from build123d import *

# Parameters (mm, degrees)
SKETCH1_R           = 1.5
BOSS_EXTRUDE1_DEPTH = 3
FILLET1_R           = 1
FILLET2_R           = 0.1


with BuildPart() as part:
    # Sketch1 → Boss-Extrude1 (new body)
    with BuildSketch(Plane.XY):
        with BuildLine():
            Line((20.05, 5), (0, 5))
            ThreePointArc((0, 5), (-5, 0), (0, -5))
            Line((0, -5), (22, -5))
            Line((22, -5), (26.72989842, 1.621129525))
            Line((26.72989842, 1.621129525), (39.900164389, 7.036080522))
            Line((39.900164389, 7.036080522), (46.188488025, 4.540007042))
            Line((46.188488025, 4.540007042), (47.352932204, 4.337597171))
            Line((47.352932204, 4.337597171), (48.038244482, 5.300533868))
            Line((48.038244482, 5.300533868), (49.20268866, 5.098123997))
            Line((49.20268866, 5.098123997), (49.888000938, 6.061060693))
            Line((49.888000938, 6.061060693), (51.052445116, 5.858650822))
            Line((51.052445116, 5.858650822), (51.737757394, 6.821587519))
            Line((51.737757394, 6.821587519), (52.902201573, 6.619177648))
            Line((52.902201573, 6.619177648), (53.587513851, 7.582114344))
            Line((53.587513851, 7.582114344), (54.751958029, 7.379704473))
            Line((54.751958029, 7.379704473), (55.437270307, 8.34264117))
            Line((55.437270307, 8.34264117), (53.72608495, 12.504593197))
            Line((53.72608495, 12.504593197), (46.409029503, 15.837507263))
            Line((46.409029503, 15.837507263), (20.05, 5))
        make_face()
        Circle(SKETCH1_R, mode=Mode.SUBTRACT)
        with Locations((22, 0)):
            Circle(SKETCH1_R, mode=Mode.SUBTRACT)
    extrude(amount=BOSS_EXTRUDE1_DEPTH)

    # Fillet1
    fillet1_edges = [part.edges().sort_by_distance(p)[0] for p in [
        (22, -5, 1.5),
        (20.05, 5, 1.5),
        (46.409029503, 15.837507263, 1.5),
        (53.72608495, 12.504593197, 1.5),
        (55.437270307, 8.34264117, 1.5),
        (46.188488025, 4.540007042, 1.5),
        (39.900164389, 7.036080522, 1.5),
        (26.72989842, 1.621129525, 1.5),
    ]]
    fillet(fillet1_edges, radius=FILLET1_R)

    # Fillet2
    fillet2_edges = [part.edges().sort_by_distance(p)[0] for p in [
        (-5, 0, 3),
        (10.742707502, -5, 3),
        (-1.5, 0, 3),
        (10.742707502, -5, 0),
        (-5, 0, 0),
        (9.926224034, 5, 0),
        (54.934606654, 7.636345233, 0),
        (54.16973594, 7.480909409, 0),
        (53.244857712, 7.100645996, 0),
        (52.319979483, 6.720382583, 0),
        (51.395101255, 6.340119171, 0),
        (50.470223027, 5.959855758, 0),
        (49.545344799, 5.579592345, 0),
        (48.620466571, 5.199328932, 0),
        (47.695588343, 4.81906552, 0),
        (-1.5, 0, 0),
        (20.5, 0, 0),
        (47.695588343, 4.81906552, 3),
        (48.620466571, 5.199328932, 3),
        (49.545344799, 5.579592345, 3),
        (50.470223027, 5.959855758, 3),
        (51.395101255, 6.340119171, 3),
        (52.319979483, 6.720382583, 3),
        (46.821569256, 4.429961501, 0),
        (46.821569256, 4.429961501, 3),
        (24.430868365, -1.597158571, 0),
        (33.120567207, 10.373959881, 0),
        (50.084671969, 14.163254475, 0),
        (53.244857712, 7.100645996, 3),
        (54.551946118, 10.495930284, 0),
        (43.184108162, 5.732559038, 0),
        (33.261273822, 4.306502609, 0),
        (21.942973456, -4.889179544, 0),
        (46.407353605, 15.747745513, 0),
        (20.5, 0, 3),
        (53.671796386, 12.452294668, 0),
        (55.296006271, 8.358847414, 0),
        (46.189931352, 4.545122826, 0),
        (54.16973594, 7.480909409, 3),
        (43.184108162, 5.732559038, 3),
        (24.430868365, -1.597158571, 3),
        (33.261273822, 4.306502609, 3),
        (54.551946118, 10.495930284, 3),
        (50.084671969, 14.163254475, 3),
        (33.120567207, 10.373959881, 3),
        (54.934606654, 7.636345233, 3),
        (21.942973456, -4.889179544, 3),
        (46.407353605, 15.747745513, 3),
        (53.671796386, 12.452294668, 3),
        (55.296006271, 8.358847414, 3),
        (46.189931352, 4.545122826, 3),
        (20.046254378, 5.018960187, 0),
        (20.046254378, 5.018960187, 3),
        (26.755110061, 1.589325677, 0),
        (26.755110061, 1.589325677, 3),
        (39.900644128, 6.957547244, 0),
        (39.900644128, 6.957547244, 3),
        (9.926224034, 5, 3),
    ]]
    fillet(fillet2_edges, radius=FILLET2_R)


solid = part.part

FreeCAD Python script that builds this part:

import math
import FreeCAD as App
import Part
import Sketcher
Q = App.Units.Quantity


def edges_at(feature, points):
    """Names of the edges that pass closest to the given points."""
    edges = feature.Shape.Edges
    near = lambda p: min(range(len(edges)), key=lambda i: edges[i].distToShape(Part.Vertex(*p))[0])
    return sorted({f"Edge{near(p) + 1}" for p in points})

doc = App.newDocument("Part")
body = doc.addObject("PartDesign::Body", "Body")

sketch1 = doc.addObject("Sketcher::SketchObject", "Sketch")
body.addObject(sketch1)
sketch1.AttachmentSupport = (doc.XY_Plane, [""])
sketch1.MapMode = "FlatFace"
sketch1.addGeometry([
    Part.LineSegment(App.Vector(20.1, 5, 0), App.Vector(0, 5, 0)),
    Part.ArcOfCircle(Part.Circle(App.Vector(0, 0, 0), App.Vector(0, 0, 1), 5), math.radians(90), math.radians(270)),
    Part.LineSegment(App.Vector(0, -5, 0), App.Vector(22, -5, 0)),
    Part.LineSegment(App.Vector(22, -5, 0), App.Vector(26.7, 1.6, 0)),
    Part.LineSegment(App.Vector(26.7, 1.6, 0), App.Vector(39.9, 7, 0)),
    Part.LineSegment(App.Vector(39.9, 7, 0), App.Vector(46.2, 4.5, 0)),
    Part.LineSegment(App.Vector(46.2, 4.5, 0), App.Vector(47.4, 4.3, 0)),
    Part.LineSegment(App.Vector(47.4, 4.3, 0), App.Vector(48, 5.3, 0)),
    Part.LineSegment(App.Vector(48, 5.3, 0), App.Vector(49.2, 5.1, 0)),
    Part.LineSegment(App.Vector(49.2, 5.1, 0), App.Vector(49.9, 6.1, 0)),
    Part.LineSegment(App.Vector(49.9, 6.1, 0), App.Vector(51.1, 5.9, 0)),
    Part.LineSegment(App.Vector(51.1, 5.9, 0), App.Vector(51.7, 6.8, 0)),
    Part.LineSegment(App.Vector(51.7, 6.8, 0), App.Vector(52.9, 6.6, 0)),
    Part.LineSegment(App.Vector(52.9, 6.6, 0), App.Vector(53.6, 7.6, 0)),
    Part.LineSegment(App.Vector(53.6, 7.6, 0), App.Vector(54.8, 7.4, 0)),
    Part.LineSegment(App.Vector(54.8, 7.4, 0), App.Vector(55.4, 8.3, 0)),
    Part.LineSegment(App.Vector(55.4, 8.3, 0), App.Vector(53.7, 12.5, 0)),
    Part.LineSegment(App.Vector(53.7, 12.5, 0), App.Vector(46.4, 15.8, 0)),
    Part.LineSegment(App.Vector(46.4, 15.8, 0), App.Vector(20.1, 5, 0)),
    Part.Circle(App.Vector(0, 0, 0), App.Vector(0, 0, 1), 1.5),
    Part.Circle(App.Vector(22, 0, 0), App.Vector(0, 0, 1), 1.5),
], False)
sketch1.addConstraint([
    Sketcher.Constraint("Tangent", 0, 2, 1, 1),
    Sketcher.Constraint("Tangent", 1, 2, 2, 1),
    Sketcher.Constraint("Coincident", 2, 2, 3, 1),
    Sketcher.Constraint("Coincident", 3, 2, 4, 1),
    Sketcher.Constraint("Coincident", 4, 2, 5, 1),
    Sketcher.Constraint("Coincident", 5, 2, 6, 1),
    Sketcher.Constraint("Coincident", 6, 2, 7, 1),
    Sketcher.Constraint("Coincident", 7, 2, 8, 1),
    Sketcher.Constraint("Coincident", 8, 2, 9, 1),
    Sketcher.Constraint("Coincident", 9, 2, 10, 1),
    Sketcher.Constraint("Coincident", 10, 2, 11, 1),
    Sketcher.Constraint("Coincident", 11, 2, 12, 1),
    Sketcher.Constraint("Coincident", 12, 2, 13, 1),
    Sketcher.Constraint("Coincident", 13, 2, 14, 1),
    Sketcher.Constraint("Coincident", 14, 2, 15, 1),
    Sketcher.Constraint("Coincident", 15, 2, 16, 1),
    Sketcher.Constraint("Coincident", 16, 2, 17, 1),
    Sketcher.Constraint("Coincident", 17, 2, 18, 1),
    Sketcher.Constraint("Coincident", 18, 2, 0, 1),
    Sketcher.Constraint("Horizontal", 0),
    Sketcher.Constraint("Horizontal", 2),
    Sketcher.Constraint("Coincident", 1, 3, -1, 1),
    Sketcher.Constraint("Coincident", 19, 3, -1, 1),
    Sketcher.Constraint("Equal", 19, 20),
    Sketcher.Constraint("PointOnObject", 20, 3, -1),
    Sketcher.Constraint("Parallel", 6, 8),
    Sketcher.Constraint("Parallel", 7, 9),
    Sketcher.Constraint("Parallel", 8, 10),
    Sketcher.Constraint("Parallel", 9, 11),
    Sketcher.Constraint("Parallel", 10, 12),
    Sketcher.Constraint("Parallel", 11, 13),
    Sketcher.Constraint("Parallel", 12, 14),
    Sketcher.Constraint("Parallel", 13, 15),
    Sketcher.Constraint("Perpendicular", 4, 16),
    Sketcher.Constraint("Perpendicular", 16, 18),
    Sketcher.Constraint("Vertical", 20, 3, 2, 2),
    Sketcher.Constraint("Equal", 6, 7),
    Sketcher.Constraint("Equal", 7, 8),
    Sketcher.Constraint("Equal", 8, 9),
    Sketcher.Constraint("Equal", 9, 10),
    Sketcher.Constraint("Equal", 10, 11),
    Sketcher.Constraint("Equal", 11, 12),
    Sketcher.Constraint("Equal", 12, 13),
    Sketcher.Constraint("Equal", 13, 14),
    Sketcher.Constraint("Equal", 14, 15),
    Sketcher.Constraint("Diameter", 19, 3.0),
    Sketcher.Constraint("Radius", 1, 5.0),
    Sketcher.Constraint("DistanceX", 2, 1, 2, 2, 22.0),
    Sketcher.Constraint("Distance", 16, 4.5),
    Sketcher.Constraint("Distance", 18, 28.5),
    Sketcher.Constraint("DistanceX", 0, 2, 0, 1, 20.05),
    Sketcher.Constraint("Angle", 4, Q("22.35 deg")),
    Sketcher.Constraint("Angle", 5, Q("-21.65 deg")),
    Sketcher.Constraint("Distance", 4, 14.24),
    Sketcher.Constraint("DistanceX", -1, 1, 9, 2, 49.888001),
    Sketcher.Constraint("DistanceX", -1, 1, 3, 2, 26.729898),
    Sketcher.Constraint("DistanceX", -1, 1, 12, 2, 52.902202),
    Sketcher.Constraint("DistanceY", -1, 1, 3, 2, 1.62113),
    Sketcher.Constraint("DistanceX", -1, 1, 5, 2, 46.188488),
    Sketcher.Constraint("DistanceY", -1, 1, 9, 2, 6.061061),
])
pad1 = doc.addObject("PartDesign::Pad", "Pad")
body.addObject(pad1)
pad1.Profile = sketch1
pad1.Length = 3
doc.recompute()

fillet = doc.addObject("PartDesign::Fillet", "Fillet")
body.addObject(fillet)
fillet.Base = (pad1, edges_at(pad1, [
    (22, -5, 1.5),
    (20.05, 5, 1.5),
    (46.409, 15.838, 1.5),
    (53.726, 12.505, 1.5),
    (55.437, 8.343, 1.5),
    (46.188, 4.54, 1.5),
    (39.9, 7.036, 1.5),
    (26.73, 1.621, 1.5),
]))
fillet.Radius = 1
doc.recompute()

fillet2 = doc.addObject("PartDesign::Fillet", "Fillet001")
body.addObject(fillet2)
fillet2.Base = (fillet, edges_at(fillet, [
    (-5, 0, 3),
    (10.743, -5, 3),
    (-1.5, 0, 3),
    (10.743, -5, 0),
    (-5, 0, 0),
    (9.926, 5, 0),
    (54.935, 7.636, 0),
    (54.17, 7.481, 0),
    (53.245, 7.101, 0),
    (52.32, 6.72, 0),
    (51.395, 6.34, 0),
    (50.47, 5.96, 0),
    (49.545, 5.58, 0),
    (48.62, 5.199, 0),
    (47.696, 4.819, 0),
    (-1.5, 0, 0),
    (20.5, 0, 0),
    (47.696, 4.819, 3),
    (48.62, 5.199, 3),
    (49.545, 5.58, 3),
    (50.47, 5.96, 3),
    (51.395, 6.34, 3),
    (52.32, 6.72, 3),
    (46.822, 4.43, 0),
    (46.822, 4.43, 3),
    (24.431, -1.597, 0),
    (33.121, 10.374, 0),
    (50.085, 14.163, 0),
    (53.245, 7.101, 3),
    (54.552, 10.496, 0),
    (43.184, 5.733, 0),
    (33.261, 4.307, 0),
    (21.943, -4.889, 0),
    (46.407, 15.748, 0),
    (20.5, 0, 3),
    (53.672, 12.452, 0),
    (55.296, 8.359, 0),
    (46.19, 4.545, 0),
    (54.17, 7.481, 3),
    (43.184, 5.733, 3),
    (24.431, -1.597, 3),
    (33.261, 4.307, 3),
    (54.552, 10.496, 3),
    (50.085, 14.163, 3),
    (33.121, 10.374, 3),
    (54.935, 7.636, 3),
    (21.943, -4.889, 3),
    (46.407, 15.748, 3),
    (53.672, 12.452, 3),
    (55.296, 8.359, 3),
    (46.19, 4.545, 3),
    (20.046, 5.019, 0),
    (20.046, 5.019, 3),
    (26.755, 1.589, 0),
    (26.755, 1.589, 3),
    (39.901, 6.958, 0),
    (39.901, 6.958, 3),
    (9.926, 5, 3),
]))
fillet2.Radius = 0.1

doc.recompute()
